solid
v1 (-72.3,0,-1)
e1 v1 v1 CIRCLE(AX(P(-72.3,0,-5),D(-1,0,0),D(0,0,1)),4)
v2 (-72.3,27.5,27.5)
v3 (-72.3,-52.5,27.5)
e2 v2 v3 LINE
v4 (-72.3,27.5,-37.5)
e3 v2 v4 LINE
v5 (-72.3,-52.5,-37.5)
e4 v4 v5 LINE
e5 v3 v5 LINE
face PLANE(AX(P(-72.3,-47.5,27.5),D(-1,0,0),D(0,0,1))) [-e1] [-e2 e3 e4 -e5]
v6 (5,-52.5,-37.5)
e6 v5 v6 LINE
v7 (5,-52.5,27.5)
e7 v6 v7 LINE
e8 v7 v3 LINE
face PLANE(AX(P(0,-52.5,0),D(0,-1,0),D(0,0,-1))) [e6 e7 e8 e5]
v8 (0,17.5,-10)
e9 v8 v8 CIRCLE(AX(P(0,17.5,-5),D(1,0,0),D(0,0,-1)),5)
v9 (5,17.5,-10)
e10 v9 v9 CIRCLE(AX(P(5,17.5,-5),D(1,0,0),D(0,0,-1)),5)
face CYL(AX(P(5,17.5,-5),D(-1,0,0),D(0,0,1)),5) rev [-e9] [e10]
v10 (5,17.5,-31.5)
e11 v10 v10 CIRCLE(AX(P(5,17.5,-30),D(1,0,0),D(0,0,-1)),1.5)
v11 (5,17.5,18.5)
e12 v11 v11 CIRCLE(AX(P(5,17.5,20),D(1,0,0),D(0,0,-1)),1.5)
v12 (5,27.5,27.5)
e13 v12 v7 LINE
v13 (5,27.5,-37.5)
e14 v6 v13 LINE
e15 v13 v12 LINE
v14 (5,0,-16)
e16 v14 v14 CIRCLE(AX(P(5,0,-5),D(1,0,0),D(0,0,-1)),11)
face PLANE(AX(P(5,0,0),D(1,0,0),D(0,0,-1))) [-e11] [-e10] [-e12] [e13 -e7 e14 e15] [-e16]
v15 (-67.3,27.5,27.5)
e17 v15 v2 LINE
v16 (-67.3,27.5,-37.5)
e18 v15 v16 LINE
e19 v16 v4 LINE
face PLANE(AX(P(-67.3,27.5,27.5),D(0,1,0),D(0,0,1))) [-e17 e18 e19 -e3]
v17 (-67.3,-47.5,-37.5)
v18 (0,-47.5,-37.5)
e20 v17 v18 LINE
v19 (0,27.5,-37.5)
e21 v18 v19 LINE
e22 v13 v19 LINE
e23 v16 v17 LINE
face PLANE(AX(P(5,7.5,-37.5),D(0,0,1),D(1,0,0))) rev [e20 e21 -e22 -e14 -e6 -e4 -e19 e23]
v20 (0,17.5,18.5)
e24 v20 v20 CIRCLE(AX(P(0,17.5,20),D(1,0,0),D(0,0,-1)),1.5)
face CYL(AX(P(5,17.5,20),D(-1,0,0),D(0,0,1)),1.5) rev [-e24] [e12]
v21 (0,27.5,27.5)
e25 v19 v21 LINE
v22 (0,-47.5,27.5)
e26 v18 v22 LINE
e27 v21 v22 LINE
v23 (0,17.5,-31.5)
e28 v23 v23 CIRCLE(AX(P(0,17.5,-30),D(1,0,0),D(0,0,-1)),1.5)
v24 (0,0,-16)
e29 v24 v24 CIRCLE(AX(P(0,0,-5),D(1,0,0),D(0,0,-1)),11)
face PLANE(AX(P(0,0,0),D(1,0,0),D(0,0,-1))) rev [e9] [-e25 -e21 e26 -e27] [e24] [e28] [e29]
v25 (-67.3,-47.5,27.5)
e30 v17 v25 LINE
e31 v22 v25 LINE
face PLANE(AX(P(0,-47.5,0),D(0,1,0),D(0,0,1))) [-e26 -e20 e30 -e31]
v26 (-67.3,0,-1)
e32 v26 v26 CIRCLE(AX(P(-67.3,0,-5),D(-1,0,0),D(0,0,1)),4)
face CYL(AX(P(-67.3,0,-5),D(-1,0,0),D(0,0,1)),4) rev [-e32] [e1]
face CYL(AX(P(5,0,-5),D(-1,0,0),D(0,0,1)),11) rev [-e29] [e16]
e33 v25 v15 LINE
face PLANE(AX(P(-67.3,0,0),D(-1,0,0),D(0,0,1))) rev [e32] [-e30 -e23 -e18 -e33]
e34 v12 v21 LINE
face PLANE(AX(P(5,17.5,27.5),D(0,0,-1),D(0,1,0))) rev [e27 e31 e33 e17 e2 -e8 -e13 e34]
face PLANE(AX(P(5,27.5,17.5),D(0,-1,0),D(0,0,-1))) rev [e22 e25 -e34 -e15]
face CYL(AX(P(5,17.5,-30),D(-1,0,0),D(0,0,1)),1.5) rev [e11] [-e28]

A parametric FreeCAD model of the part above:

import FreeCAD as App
import Part
import Sketcher
Q = App.Units.Quantity

doc = App.newDocument("Part")
body = doc.addObject("PartDesign::Body", "Body")

sketch1 = body.newObject("Sketcher::SketchObject", "Sketch")
sketch1.AttachmentSupport = (doc.getObject("YZ_Plane"), [""])
sketch1.MapMode = "FlatFace"
sketch1.addGeometry(Part.LineSegment(App.Vector(27.5, 27.5, 0), App.Vector(-27.5, 27.5, 0)), False)
sketch1.addGeometry(Part.LineSegment(App.Vector(-27.5, 27.5, 0), App.Vector(-27.5, -37.5, 0)), False)
sketch1.addGeometry(Part.LineSegment(App.Vector(-27.5, -37.5, 0), App.Vector(27.5, -37.5, 0)), False)
sketch1.addGeometry(Part.LineSegment(App.Vector(27.5, -37.5, 0), App.Vector(27.5, 27.5, 0)), False)
sketch1.addGeometry(Part.Circle(App.Vector(0, -5, 0), App.Vector(0, 0, 1), 11), False)
sketch1.addGeometry(Part.Circle(App.Vector(17.5, 20, 0), App.Vector(0, 0, 1), 1.5), False)
sketch1.addGeometry(Part.Circle(App.Vector(17.5, -5, 0), App.Vector(0, 0, 1), 5), False)
sketch1.addGeometry(Part.Circle(App.Vector(17.5, -30, 0), App.Vector(0, 0, 1), 1.5), False)
sketch1.addConstraint(Sketcher.Constraint("Coincident", 0, 2, 1, 1))
sketch1.addConstraint(Sketcher.Constraint("Coincident", 1, 2, 2, 1))
sketch1.addConstraint(Sketcher.Constraint("Coincident", 2, 2, 3, 1))
sketch1.addConstraint(Sketcher.Constraint("Coincident", 3, 2, 0, 1))
sketch1.addConstraint(Sketcher.Constraint("Horizontal", 0))
sketch1.addConstraint(Sketcher.Constraint("Vertical", 1))
sketch1.addConstraint(Sketcher.Constraint("Horizontal", 2))
sketch1.addConstraint(Sketcher.Constraint("Vertical", 3))
sketch1.addConstraint(Sketcher.Constraint("Equal", 5, 7))
sketch1.addConstraint(Sketcher.Constraint("PointOnObject", 4, 3, -2))
sketch1.addConstraint(Sketcher.Constraint("Horizontal", 4, 3, 6, 3))
sketch1.addConstraint(Sketcher.Constraint("Vertical", 5, 3, 6, 3))
sketch1.addConstraint(Sketcher.Constraint("Vertical", 6, 3, 7, 3))
sketch1.addConstraint(Sketcher.Constraint("Diameter", 4, Q("22 mm")))
sketch1.addConstraint(Sketcher.Constraint("Diameter", 5, Q("3 mm")))
sketch1.addConstraint(Sketcher.Constraint("Diameter", 6, Q("10 mm")))
sketch1.addConstraint(Sketcher.Constraint("DistanceX", 0, 2, 0, 1, Q("55 mm")))
sketch1.addConstraint(Sketcher.Constraint("DistanceY", 1, 2, 1, 1, Q("65 mm")))
sketch1.addConstraint(Sketcher.Constraint("DistanceY", 4, 3, -1, 1, Q("5 mm")))
sketch1.addConstraint(Sketcher.Constraint("DistanceY", -1, 1, 5, 3, Q("20 mm")))
sketch1.addConstraint(Sketcher.Constraint("DistanceY", 7, 3, -1, 1, Q("30 mm")))
sketch1.addConstraint(Sketcher.Constraint("DistanceX", 0, 2, 5, 3, Q("45 mm")))
sketch1.addConstraint(Sketcher.Constraint("DistanceX", -1, 1, 5, 3, Q("17.5 mm")))
sketch1.addConstraint(Sketcher.Constraint("DistanceY", -1, 1, 0, 2, Q("27.5 mm")))
pad1 = body.newObject("PartDesign::Pad", "Pad")
pad1.Profile = sketch1
pad1.Length = 5

sketch2 = body.newObject("Sketcher::SketchObject", "Sketch001")
sketch2.AttachmentSupport = (doc.getObject("XZ_Plane"), [""])
sketch2.MapMode = "FlatFace"
sketch2.AttachmentOffset = App.Placement(App.Vector(0, 0, 27.5), App.Rotation())
sketch2.addGeometry(Part.LineSegment(App.Vector(0, 28, 0), App.Vector(0, -38, 0)), False)
sketch2.addGeometry(Part.LineSegment(App.Vector(0, -38, 0), App.Vector(5, -38, 0)), False)
sketch2.addGeometry(Part.LineSegment(App.Vector(5, -38, 0), App.Vector(5, 28, 0)), False)
sketch2.addGeometry(Part.LineSegment(App.Vector(5, 28, 0), App.Vector(0, 28, 0)), False)
sketch2.addConstraint(Sketcher.Constraint("Coincident", 0, 2, 1, 1))
sketch2.addConstraint(Sketcher.Constraint("Coincident", 1, 2, 2, 1))
sketch2.addConstraint(Sketcher.Constraint("Coincident", 2, 2, 3, 1))
sketch2.addConstraint(Sketcher.Constraint("Coincident", 3, 2, 0, 1))
sketch2.addConstraint(Sketcher.Constraint("Vertical", 0))
sketch2.addConstraint(Sketcher.Constraint("Horizontal", 1))
sketch2.addConstraint(Sketcher.Constraint("Vertical", 2))
sketch2.addConstraint(Sketcher.Constraint("Horizontal", 3))
sketch2.addConstraint(Sketcher.Constraint("PointOnObject", 0, 2, -2))
sketch2.addConstraint(Sketcher.Constraint("DistanceX", 1, 1, 1, 2, Q("5 mm")))
sketch2.addConstraint(Sketcher.Constraint("DistanceY", 0, 2, 0, 1, Q("65 mm")))
sketch2.addConstraint(Sketcher.Constraint("DistanceY", 0, 2, -1, 1, Q("37.5 mm")))
pad2 = body.newObject("PartDesign::Pad", "Pad001")
pad2.Profile = sketch2
pad2.Length = 25

sketch3 = body.newObject("Sketcher::SketchObject", "Sketch002")
sketch3.AttachmentSupport = (doc.getObject("XZ_Plane"), [""])
sketch3.MapMode = "FlatFace"
sketch3.AttachmentOffset = App.Placement(App.Vector(0, 0, 52.5), App.Rotation())
sketch3.addGeometry(Part.LineSegment(App.Vector(-72, 28, 0), App.Vector(-72, -38, 0)), False)
sketch3.addGeometry(Part.LineSegment(App.Vector(-72, -38, 0), App.Vector(0, -38, 0)), False)
sketch3.addGeometry(Part.LineSegment(App.Vector(0, -38, 0), App.Vector(0, 28, 0)), False)
sketch3.addGeometry(Part.LineSegment(App.Vector(0, 28, 0), App.Vector(-72, 28, 0)), False)
sketch3.addConstraint(Sketcher.Constraint("Coincident", 0, 2, 1, 1))
sketch3.addConstraint(Sketcher.Constraint("Coincident", 1, 2, 2, 1))
sketch3.addConstraint(Sketcher.Constraint("Coincident", 2, 2, 3, 1))
sketch3.addConstraint(Sketcher.Constraint("Coincident", 3, 2, 0, 1))
sketch3.addConstraint(Sketcher.Constraint("Vertical", 0))
sketch3.addConstraint(Sketcher.Constraint("Horizontal", 1))
sketch3.addConstraint(Sketcher.Constraint("Vertical", 2))
sketch3.addConstraint(Sketcher.Constraint("Horizontal", 3))
sketch3.addConstraint(Sketcher.Constraint("PointOnObject", 1, 2, -2))
sketch3.addConstraint(Sketcher.Constraint("DistanceY", 0, 2, 0, 1, Q("65 mm")))
sketch3.addConstraint(Sketcher.Constraint("DistanceX", 1, 1, 1, 2, Q("72.3 mm")))
sketch3.addConstraint(Sketcher.Constraint("DistanceY", 0, 2, -1, 1, Q("37.5 mm")))
pad3 = body.newObject("PartDesign::Pad", "Pad002")
pad3.Profile = sketch3
pad3.Length = 5
pad3.Reversed = True

sketch4 = body.newObject("Sketcher::SketchObject", "Sketch003")
sketch4.AttachmentSupport = (doc.getObject("YZ_Plane"), [""])
sketch4.MapMode = "FlatFace"
sketch4.AttachmentOffset = App.Placement(App.Vector(0, 0, -72.3), App.Rotation())
sketch4.addGeometry(Part.LineSegment(App.Vector(27.5, -37.5, 0), App.Vector(-47.5, -37.5, 0)), False)
sketch4.addGeometry(Part.LineSegment(App.Vector(-47.5, -37.5, 0), App.Vector(-47.5, 27.5, 0)), False)
sketch4.addGeometry(Part.LineSegment(App.Vector(-47.5, 27.5, 0), App.Vector(27.5, 27.5, 0)), False)
sketch4.addGeometry(Part.LineSegment(App.Vector(27.5, 27.5, 0), App.Vector(27.5, -37.5, 0)), False)
sketch4.addGeometry(Part.Circle(App.Vector(0, -5, 0), App.Vector(0, 0, 1), 4), False)
sketch4.addConstraint(Sketcher.Constraint("Coincident", 0, 2, 1, 1))
sketch4.addConstraint(Sketcher.Constraint("Coincident", 1, 2, 2, 1))
sketch4.addConstraint(Sketcher.Constraint("Coincident", 2, 2, 3, 1))
sketch4.addConstraint(Sketcher.Constraint("Coincident", 3, 2, 0, 1))
sketch4.addConstraint(Sketcher.Constraint("Horizontal", 0))
sketch4.addConstraint(Sketcher.Constraint("Vertical", 1))
sketch4.addConstraint(Sketcher.Constraint("Horizontal", 2))
sketch4.addConstraint(Sketcher.Constraint("Vertical", 3))
sketch4.addConstraint(Sketcher.Constraint("PointOnObject", 4, 3, -2))
sketch4.addConstraint(Sketcher.Constraint("Diameter", 4, Q("8 mm")))
sketch4.addConstraint(Sketcher.Constraint("DistanceX", 0, 2, 0, 1, Q("75 mm")))
sketch4.addConstraint(Sketcher.Constraint("DistanceY", 1, 1, 1, 2, Q("65 mm")))
sketch4.addConstraint(Sketcher.Constraint("DistanceY", 4, 3, -1, 1, Q("5 mm")))
sketch4.addConstraint(Sketcher.Constraint("DistanceX", 0, 2, -1, 1, Q("47.5 mm")))
sketch4.addConstraint(Sketcher.Constraint("DistanceY", 0, 2, -1, 1, Q("37.5 mm")))
pad4 = body.newObject("PartDesign::Pad", "Pad003")
pad4.Profile = sketch4
pad4.Length = 5

doc.recompute()
